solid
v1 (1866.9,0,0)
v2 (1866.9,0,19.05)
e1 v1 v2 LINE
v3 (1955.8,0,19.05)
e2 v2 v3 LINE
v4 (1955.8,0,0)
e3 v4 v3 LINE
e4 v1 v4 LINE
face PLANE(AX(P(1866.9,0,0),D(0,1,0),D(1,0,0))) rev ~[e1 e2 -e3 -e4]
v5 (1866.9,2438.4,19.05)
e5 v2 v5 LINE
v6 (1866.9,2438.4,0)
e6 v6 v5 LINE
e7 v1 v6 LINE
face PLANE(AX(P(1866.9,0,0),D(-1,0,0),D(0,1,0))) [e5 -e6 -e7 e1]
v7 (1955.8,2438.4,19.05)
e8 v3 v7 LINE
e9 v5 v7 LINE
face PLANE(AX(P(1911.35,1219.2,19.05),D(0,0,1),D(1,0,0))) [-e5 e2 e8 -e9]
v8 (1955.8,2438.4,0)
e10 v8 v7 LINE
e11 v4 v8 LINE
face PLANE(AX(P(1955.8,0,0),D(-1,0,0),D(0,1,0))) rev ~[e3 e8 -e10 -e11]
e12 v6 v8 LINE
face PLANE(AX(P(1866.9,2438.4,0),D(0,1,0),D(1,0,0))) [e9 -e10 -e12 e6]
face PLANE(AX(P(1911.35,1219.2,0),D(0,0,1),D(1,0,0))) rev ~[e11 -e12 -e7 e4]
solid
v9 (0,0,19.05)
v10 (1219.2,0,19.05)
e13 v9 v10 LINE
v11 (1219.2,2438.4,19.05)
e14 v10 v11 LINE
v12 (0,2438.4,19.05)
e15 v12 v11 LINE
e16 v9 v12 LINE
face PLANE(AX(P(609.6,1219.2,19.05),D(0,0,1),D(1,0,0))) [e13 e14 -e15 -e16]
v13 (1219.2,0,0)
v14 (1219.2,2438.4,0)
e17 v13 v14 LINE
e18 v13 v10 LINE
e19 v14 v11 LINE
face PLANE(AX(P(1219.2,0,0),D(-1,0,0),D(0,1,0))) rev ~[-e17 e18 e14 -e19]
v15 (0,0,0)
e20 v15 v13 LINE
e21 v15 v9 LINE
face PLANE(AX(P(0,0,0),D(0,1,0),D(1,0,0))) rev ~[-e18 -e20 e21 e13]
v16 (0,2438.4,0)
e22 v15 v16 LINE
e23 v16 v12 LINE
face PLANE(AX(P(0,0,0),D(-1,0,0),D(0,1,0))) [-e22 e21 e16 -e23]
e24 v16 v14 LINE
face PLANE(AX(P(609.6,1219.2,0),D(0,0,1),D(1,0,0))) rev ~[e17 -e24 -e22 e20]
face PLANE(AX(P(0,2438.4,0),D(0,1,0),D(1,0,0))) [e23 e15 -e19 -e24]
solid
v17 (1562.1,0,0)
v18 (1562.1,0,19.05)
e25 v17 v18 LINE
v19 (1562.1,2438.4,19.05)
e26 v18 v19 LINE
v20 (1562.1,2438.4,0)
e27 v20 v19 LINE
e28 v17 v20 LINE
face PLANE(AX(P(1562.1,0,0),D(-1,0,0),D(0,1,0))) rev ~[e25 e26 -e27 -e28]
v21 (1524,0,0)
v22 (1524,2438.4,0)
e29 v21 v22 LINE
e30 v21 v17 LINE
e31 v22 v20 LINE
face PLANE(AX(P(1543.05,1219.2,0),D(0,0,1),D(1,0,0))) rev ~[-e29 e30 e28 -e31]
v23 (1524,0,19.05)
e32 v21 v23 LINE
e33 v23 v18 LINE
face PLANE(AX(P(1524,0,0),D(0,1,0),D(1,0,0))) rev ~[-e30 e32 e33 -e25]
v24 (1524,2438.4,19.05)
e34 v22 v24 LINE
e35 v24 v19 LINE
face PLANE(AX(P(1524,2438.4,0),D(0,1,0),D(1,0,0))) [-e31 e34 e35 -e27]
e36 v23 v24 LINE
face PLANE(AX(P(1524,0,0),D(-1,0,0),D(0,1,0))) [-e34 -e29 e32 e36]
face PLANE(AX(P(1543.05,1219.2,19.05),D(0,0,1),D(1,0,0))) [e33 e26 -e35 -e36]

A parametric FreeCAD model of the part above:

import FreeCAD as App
import Part
import Sketcher
from FreeCAD import Vector
Q = App.Units.Quantity

doc = App.newDocument("Part")
body = doc.addObject("PartDesign::Body", "Body")
body.AllowCompound = True

# Sketch on XY plane
sketch1 = body.newObject("Sketcher::SketchObject", "Sketch")
sketch1.AttachmentSupport = (doc.getObject("XY_Plane"), [""])
sketch1.MapMode = "FlatFace"
sketch1.addGeometry([
    Part.LineSegment(Vector(0, 2438, 0), Vector(0, 0, 0)),  # 0
    Part.LineSegment(Vector(0, 0, 0), Vector(1219, 0, 0)),  # 1
    Part.LineSegment(Vector(1219, 0, 0), Vector(1219, 2438, 0)),  # 2
    Part.LineSegment(Vector(1219, 2438, 0), Vector(0, 2438, 0)),  # 3
    Part.LineSegment(Vector(1524, 2438, 0), Vector(1524, 0, 0)),  # 4
    Part.LineSegment(Vector(1524, 0, 0), Vector(1562, 0, 0)),  # 5
    Part.LineSegment(Vector(1562, 0, 0), Vector(1562, 2438, 0)),  # 6
    Part.LineSegment(Vector(1562, 2438, 0), Vector(1524, 2438, 0)),  # 7
    Part.LineSegment(Vector(1867, 2438, 0), Vector(1867, 0, 0)),  # 8
    Part.LineSegment(Vector(1867, 0, 0), Vector(1956, 0, 0)),  # 9
    Part.LineSegment(Vector(1956, 0, 0), Vector(1956, 2438, 0)),  # 10
    Part.LineSegment(Vector(1956, 2438, 0), Vector(1867, 2438, 0)),  # 11
], False)
sketch1.addConstraint([
    Sketcher.Constraint("Coincident", 0, 2, 1, 1),
    Sketcher.Constraint("Coincident", 1, 2, 2, 1),
    Sketcher.Constraint("Coincident", 2, 2, 3, 1),
    Sketcher.Constraint("Coincident", 3, 2, 0, 1),
    Sketcher.Constraint("Coincident", 4, 2, 5, 1),
    Sketcher.Constraint("Coincident", 5, 2, 6, 1),
    Sketcher.Constraint("Coincident", 6, 2, 7, 1),
    Sketcher.Constraint("Coincident", 7, 2, 4, 1),
    Sketcher.Constraint("Coincident", 8, 2, 9, 1),
    Sketcher.Constraint("Coincident", 9, 2, 10, 1),
    Sketcher.Constraint("Coincident", 10, 2, 11, 1),
    Sketcher.Constraint("Coincident", 11, 2, 8, 1),
    Sketcher.Constraint("Vertical", 0),
    Sketcher.Constraint("Horizontal", 1),
    Sketcher.Constraint("Vertical", 2),
    Sketcher.Constraint("Horizontal", 3),
    Sketcher.Constraint("Vertical", 4),
    Sketcher.Constraint("Horizontal", 5),
    Sketcher.Constraint("Vertical", 6),
    Sketcher.Constraint("Horizontal", 7),
    Sketcher.Constraint("Vertical", 8),
    Sketcher.Constraint("Horizontal", 9),
    Sketcher.Constraint("Vertical", 10),
    Sketcher.Constraint("Horizontal", 11),
    Sketcher.Constraint("Coincident", 0, 2, -1, 1),
    Sketcher.Constraint("PointOnObject", 4, 2, -1),
    Sketcher.Constraint("PointOnObject", 8, 2, -1),
    Sketcher.Constraint("Horizontal", 3, 2, 6, 2),
    Sketcher.Constraint("Horizontal", 7, 2, 10, 2),
    Sketcher.Constraint("DistanceX", 1, 1, 1, 2, Q("48 in")),
    Sketcher.Constraint("DistanceY", 0, 2, 0, 1, Q("96 in")),
    Sketcher.Constraint("DistanceX", 5, 1, 5, 2, Q("1.5 in")),
    Sketcher.Constraint("DistanceX", 9, 1, 9, 2, Q("3.5 in")),
    Sketcher.Constraint("DistanceX", -1, 1, 4, 2, Q("60 in")),
    Sketcher.Constraint("DistanceX", -1, 1, 9, 2, Q("77 in")),
])
pad1 = body.newObject("PartDesign::Pad", "Pad")
pad1.Profile = sketch1
pad1.Length = Q("0.75 in")

doc.recompute()
